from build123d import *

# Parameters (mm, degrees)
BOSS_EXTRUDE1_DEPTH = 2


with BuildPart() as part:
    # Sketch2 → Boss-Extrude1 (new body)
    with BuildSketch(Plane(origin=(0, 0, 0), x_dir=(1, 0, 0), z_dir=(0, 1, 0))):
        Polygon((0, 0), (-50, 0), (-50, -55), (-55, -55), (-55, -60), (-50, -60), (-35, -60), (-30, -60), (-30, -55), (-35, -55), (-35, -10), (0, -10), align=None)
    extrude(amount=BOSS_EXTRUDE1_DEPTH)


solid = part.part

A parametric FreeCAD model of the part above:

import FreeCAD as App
import Part
import Sketcher
Q = App.Units.Quantity


def add_polygon(sketch, points):
    """Adds a closed chain of lines whose ends are joined by coincident constraints."""
    first, n = sketch.GeometryCount, len(points)
    for a, b in zip(points, points[1:] + points[:1]):
        sketch.addGeometry(Part.LineSegment(App.Vector(*a, 0), App.Vector(*b, 0)), False)
    for i in range(n):
        sketch.addConstraint(Sketcher.Constraint("Coincident", first + i, 2, first + (i + 1) % n, 1))

doc = App.newDocument("Part")
body = doc.addObject("PartDesign::Body", "Body")

# Sketch on XZ plane
sketch1 = body.newObject("Sketcher::SketchObject", "Sketch")
sketch1.AttachmentSupport = (doc.getObject("XZ_Plane"), [""])
sketch1.MapMode = "FlatFace"
add_polygon(sketch1, [(0, 0), (-50, 0), (-50, 55), (-55, 55), (-55, 60), (-30, 60), (-30, 55), (-35, 55), (-35, 10), (0, 10)])  # lines 0-9
sketch1.addConstraint(Sketcher.Constraint("Horizontal", 0))
sketch1.addConstraint(Sketcher.Constraint("Vertical", 1))
sketch1.addConstraint(Sketcher.Constraint("Horizontal", 2))
sketch1.addConstraint(Sketcher.Constraint("Vertical", 3))
sketch1.addConstraint(Sketcher.Constraint("Horizontal", 4))
sketch1.addConstraint(Sketcher.Constraint("Vertical", 5))
sketch1.addConstraint(Sketcher.Constraint("Horizontal", 6))
sketch1.addConstraint(Sketcher.Constraint("Vertical", 7))
sketch1.addConstraint(Sketcher.Constraint("Horizontal", 8))
sketch1.addConstraint(Sketcher.Constraint("Vertical", 9))
sketch1.addConstraint(Sketcher.Constraint("Coincident", 9, 2, -1, 1))
sketch1.addConstraint(Sketcher.Constraint("Horizontal", 2, 2, 5, 2))
sketch1.addConstraint(Sketcher.Constraint("Equal", 2, 6))
sketch1.addConstraint(Sketcher.Constraint("Equal", 6, 3))
sketch1.addConstraint(Sketcher.Constraint("DistanceX", 0, 2, 0, 1, Q("50 mm")))
sketch1.addConstraint(Sketcher.Constraint("DistanceX", 2, 2, 2, 1, Q("5 mm")))
sketch1.addConstraint(Sketcher.Constraint("DistanceX", 4, 1, 4, 2, Q("25 mm")))
sketch1.addConstraint(Sketcher.Constraint("DistanceY", 1, 1, 1, 2, Q("55 mm")))
sketch1.addConstraint(Sketcher.Constraint("DistanceY", 7, 2, 7, 1, Q("45 mm")))
pad1 = body.newObject("PartDesign::Pad", "Pad")
pad1.Profile = sketch1
pad1.Length = 2
pad1.Reversed = True

doc.recompute()
